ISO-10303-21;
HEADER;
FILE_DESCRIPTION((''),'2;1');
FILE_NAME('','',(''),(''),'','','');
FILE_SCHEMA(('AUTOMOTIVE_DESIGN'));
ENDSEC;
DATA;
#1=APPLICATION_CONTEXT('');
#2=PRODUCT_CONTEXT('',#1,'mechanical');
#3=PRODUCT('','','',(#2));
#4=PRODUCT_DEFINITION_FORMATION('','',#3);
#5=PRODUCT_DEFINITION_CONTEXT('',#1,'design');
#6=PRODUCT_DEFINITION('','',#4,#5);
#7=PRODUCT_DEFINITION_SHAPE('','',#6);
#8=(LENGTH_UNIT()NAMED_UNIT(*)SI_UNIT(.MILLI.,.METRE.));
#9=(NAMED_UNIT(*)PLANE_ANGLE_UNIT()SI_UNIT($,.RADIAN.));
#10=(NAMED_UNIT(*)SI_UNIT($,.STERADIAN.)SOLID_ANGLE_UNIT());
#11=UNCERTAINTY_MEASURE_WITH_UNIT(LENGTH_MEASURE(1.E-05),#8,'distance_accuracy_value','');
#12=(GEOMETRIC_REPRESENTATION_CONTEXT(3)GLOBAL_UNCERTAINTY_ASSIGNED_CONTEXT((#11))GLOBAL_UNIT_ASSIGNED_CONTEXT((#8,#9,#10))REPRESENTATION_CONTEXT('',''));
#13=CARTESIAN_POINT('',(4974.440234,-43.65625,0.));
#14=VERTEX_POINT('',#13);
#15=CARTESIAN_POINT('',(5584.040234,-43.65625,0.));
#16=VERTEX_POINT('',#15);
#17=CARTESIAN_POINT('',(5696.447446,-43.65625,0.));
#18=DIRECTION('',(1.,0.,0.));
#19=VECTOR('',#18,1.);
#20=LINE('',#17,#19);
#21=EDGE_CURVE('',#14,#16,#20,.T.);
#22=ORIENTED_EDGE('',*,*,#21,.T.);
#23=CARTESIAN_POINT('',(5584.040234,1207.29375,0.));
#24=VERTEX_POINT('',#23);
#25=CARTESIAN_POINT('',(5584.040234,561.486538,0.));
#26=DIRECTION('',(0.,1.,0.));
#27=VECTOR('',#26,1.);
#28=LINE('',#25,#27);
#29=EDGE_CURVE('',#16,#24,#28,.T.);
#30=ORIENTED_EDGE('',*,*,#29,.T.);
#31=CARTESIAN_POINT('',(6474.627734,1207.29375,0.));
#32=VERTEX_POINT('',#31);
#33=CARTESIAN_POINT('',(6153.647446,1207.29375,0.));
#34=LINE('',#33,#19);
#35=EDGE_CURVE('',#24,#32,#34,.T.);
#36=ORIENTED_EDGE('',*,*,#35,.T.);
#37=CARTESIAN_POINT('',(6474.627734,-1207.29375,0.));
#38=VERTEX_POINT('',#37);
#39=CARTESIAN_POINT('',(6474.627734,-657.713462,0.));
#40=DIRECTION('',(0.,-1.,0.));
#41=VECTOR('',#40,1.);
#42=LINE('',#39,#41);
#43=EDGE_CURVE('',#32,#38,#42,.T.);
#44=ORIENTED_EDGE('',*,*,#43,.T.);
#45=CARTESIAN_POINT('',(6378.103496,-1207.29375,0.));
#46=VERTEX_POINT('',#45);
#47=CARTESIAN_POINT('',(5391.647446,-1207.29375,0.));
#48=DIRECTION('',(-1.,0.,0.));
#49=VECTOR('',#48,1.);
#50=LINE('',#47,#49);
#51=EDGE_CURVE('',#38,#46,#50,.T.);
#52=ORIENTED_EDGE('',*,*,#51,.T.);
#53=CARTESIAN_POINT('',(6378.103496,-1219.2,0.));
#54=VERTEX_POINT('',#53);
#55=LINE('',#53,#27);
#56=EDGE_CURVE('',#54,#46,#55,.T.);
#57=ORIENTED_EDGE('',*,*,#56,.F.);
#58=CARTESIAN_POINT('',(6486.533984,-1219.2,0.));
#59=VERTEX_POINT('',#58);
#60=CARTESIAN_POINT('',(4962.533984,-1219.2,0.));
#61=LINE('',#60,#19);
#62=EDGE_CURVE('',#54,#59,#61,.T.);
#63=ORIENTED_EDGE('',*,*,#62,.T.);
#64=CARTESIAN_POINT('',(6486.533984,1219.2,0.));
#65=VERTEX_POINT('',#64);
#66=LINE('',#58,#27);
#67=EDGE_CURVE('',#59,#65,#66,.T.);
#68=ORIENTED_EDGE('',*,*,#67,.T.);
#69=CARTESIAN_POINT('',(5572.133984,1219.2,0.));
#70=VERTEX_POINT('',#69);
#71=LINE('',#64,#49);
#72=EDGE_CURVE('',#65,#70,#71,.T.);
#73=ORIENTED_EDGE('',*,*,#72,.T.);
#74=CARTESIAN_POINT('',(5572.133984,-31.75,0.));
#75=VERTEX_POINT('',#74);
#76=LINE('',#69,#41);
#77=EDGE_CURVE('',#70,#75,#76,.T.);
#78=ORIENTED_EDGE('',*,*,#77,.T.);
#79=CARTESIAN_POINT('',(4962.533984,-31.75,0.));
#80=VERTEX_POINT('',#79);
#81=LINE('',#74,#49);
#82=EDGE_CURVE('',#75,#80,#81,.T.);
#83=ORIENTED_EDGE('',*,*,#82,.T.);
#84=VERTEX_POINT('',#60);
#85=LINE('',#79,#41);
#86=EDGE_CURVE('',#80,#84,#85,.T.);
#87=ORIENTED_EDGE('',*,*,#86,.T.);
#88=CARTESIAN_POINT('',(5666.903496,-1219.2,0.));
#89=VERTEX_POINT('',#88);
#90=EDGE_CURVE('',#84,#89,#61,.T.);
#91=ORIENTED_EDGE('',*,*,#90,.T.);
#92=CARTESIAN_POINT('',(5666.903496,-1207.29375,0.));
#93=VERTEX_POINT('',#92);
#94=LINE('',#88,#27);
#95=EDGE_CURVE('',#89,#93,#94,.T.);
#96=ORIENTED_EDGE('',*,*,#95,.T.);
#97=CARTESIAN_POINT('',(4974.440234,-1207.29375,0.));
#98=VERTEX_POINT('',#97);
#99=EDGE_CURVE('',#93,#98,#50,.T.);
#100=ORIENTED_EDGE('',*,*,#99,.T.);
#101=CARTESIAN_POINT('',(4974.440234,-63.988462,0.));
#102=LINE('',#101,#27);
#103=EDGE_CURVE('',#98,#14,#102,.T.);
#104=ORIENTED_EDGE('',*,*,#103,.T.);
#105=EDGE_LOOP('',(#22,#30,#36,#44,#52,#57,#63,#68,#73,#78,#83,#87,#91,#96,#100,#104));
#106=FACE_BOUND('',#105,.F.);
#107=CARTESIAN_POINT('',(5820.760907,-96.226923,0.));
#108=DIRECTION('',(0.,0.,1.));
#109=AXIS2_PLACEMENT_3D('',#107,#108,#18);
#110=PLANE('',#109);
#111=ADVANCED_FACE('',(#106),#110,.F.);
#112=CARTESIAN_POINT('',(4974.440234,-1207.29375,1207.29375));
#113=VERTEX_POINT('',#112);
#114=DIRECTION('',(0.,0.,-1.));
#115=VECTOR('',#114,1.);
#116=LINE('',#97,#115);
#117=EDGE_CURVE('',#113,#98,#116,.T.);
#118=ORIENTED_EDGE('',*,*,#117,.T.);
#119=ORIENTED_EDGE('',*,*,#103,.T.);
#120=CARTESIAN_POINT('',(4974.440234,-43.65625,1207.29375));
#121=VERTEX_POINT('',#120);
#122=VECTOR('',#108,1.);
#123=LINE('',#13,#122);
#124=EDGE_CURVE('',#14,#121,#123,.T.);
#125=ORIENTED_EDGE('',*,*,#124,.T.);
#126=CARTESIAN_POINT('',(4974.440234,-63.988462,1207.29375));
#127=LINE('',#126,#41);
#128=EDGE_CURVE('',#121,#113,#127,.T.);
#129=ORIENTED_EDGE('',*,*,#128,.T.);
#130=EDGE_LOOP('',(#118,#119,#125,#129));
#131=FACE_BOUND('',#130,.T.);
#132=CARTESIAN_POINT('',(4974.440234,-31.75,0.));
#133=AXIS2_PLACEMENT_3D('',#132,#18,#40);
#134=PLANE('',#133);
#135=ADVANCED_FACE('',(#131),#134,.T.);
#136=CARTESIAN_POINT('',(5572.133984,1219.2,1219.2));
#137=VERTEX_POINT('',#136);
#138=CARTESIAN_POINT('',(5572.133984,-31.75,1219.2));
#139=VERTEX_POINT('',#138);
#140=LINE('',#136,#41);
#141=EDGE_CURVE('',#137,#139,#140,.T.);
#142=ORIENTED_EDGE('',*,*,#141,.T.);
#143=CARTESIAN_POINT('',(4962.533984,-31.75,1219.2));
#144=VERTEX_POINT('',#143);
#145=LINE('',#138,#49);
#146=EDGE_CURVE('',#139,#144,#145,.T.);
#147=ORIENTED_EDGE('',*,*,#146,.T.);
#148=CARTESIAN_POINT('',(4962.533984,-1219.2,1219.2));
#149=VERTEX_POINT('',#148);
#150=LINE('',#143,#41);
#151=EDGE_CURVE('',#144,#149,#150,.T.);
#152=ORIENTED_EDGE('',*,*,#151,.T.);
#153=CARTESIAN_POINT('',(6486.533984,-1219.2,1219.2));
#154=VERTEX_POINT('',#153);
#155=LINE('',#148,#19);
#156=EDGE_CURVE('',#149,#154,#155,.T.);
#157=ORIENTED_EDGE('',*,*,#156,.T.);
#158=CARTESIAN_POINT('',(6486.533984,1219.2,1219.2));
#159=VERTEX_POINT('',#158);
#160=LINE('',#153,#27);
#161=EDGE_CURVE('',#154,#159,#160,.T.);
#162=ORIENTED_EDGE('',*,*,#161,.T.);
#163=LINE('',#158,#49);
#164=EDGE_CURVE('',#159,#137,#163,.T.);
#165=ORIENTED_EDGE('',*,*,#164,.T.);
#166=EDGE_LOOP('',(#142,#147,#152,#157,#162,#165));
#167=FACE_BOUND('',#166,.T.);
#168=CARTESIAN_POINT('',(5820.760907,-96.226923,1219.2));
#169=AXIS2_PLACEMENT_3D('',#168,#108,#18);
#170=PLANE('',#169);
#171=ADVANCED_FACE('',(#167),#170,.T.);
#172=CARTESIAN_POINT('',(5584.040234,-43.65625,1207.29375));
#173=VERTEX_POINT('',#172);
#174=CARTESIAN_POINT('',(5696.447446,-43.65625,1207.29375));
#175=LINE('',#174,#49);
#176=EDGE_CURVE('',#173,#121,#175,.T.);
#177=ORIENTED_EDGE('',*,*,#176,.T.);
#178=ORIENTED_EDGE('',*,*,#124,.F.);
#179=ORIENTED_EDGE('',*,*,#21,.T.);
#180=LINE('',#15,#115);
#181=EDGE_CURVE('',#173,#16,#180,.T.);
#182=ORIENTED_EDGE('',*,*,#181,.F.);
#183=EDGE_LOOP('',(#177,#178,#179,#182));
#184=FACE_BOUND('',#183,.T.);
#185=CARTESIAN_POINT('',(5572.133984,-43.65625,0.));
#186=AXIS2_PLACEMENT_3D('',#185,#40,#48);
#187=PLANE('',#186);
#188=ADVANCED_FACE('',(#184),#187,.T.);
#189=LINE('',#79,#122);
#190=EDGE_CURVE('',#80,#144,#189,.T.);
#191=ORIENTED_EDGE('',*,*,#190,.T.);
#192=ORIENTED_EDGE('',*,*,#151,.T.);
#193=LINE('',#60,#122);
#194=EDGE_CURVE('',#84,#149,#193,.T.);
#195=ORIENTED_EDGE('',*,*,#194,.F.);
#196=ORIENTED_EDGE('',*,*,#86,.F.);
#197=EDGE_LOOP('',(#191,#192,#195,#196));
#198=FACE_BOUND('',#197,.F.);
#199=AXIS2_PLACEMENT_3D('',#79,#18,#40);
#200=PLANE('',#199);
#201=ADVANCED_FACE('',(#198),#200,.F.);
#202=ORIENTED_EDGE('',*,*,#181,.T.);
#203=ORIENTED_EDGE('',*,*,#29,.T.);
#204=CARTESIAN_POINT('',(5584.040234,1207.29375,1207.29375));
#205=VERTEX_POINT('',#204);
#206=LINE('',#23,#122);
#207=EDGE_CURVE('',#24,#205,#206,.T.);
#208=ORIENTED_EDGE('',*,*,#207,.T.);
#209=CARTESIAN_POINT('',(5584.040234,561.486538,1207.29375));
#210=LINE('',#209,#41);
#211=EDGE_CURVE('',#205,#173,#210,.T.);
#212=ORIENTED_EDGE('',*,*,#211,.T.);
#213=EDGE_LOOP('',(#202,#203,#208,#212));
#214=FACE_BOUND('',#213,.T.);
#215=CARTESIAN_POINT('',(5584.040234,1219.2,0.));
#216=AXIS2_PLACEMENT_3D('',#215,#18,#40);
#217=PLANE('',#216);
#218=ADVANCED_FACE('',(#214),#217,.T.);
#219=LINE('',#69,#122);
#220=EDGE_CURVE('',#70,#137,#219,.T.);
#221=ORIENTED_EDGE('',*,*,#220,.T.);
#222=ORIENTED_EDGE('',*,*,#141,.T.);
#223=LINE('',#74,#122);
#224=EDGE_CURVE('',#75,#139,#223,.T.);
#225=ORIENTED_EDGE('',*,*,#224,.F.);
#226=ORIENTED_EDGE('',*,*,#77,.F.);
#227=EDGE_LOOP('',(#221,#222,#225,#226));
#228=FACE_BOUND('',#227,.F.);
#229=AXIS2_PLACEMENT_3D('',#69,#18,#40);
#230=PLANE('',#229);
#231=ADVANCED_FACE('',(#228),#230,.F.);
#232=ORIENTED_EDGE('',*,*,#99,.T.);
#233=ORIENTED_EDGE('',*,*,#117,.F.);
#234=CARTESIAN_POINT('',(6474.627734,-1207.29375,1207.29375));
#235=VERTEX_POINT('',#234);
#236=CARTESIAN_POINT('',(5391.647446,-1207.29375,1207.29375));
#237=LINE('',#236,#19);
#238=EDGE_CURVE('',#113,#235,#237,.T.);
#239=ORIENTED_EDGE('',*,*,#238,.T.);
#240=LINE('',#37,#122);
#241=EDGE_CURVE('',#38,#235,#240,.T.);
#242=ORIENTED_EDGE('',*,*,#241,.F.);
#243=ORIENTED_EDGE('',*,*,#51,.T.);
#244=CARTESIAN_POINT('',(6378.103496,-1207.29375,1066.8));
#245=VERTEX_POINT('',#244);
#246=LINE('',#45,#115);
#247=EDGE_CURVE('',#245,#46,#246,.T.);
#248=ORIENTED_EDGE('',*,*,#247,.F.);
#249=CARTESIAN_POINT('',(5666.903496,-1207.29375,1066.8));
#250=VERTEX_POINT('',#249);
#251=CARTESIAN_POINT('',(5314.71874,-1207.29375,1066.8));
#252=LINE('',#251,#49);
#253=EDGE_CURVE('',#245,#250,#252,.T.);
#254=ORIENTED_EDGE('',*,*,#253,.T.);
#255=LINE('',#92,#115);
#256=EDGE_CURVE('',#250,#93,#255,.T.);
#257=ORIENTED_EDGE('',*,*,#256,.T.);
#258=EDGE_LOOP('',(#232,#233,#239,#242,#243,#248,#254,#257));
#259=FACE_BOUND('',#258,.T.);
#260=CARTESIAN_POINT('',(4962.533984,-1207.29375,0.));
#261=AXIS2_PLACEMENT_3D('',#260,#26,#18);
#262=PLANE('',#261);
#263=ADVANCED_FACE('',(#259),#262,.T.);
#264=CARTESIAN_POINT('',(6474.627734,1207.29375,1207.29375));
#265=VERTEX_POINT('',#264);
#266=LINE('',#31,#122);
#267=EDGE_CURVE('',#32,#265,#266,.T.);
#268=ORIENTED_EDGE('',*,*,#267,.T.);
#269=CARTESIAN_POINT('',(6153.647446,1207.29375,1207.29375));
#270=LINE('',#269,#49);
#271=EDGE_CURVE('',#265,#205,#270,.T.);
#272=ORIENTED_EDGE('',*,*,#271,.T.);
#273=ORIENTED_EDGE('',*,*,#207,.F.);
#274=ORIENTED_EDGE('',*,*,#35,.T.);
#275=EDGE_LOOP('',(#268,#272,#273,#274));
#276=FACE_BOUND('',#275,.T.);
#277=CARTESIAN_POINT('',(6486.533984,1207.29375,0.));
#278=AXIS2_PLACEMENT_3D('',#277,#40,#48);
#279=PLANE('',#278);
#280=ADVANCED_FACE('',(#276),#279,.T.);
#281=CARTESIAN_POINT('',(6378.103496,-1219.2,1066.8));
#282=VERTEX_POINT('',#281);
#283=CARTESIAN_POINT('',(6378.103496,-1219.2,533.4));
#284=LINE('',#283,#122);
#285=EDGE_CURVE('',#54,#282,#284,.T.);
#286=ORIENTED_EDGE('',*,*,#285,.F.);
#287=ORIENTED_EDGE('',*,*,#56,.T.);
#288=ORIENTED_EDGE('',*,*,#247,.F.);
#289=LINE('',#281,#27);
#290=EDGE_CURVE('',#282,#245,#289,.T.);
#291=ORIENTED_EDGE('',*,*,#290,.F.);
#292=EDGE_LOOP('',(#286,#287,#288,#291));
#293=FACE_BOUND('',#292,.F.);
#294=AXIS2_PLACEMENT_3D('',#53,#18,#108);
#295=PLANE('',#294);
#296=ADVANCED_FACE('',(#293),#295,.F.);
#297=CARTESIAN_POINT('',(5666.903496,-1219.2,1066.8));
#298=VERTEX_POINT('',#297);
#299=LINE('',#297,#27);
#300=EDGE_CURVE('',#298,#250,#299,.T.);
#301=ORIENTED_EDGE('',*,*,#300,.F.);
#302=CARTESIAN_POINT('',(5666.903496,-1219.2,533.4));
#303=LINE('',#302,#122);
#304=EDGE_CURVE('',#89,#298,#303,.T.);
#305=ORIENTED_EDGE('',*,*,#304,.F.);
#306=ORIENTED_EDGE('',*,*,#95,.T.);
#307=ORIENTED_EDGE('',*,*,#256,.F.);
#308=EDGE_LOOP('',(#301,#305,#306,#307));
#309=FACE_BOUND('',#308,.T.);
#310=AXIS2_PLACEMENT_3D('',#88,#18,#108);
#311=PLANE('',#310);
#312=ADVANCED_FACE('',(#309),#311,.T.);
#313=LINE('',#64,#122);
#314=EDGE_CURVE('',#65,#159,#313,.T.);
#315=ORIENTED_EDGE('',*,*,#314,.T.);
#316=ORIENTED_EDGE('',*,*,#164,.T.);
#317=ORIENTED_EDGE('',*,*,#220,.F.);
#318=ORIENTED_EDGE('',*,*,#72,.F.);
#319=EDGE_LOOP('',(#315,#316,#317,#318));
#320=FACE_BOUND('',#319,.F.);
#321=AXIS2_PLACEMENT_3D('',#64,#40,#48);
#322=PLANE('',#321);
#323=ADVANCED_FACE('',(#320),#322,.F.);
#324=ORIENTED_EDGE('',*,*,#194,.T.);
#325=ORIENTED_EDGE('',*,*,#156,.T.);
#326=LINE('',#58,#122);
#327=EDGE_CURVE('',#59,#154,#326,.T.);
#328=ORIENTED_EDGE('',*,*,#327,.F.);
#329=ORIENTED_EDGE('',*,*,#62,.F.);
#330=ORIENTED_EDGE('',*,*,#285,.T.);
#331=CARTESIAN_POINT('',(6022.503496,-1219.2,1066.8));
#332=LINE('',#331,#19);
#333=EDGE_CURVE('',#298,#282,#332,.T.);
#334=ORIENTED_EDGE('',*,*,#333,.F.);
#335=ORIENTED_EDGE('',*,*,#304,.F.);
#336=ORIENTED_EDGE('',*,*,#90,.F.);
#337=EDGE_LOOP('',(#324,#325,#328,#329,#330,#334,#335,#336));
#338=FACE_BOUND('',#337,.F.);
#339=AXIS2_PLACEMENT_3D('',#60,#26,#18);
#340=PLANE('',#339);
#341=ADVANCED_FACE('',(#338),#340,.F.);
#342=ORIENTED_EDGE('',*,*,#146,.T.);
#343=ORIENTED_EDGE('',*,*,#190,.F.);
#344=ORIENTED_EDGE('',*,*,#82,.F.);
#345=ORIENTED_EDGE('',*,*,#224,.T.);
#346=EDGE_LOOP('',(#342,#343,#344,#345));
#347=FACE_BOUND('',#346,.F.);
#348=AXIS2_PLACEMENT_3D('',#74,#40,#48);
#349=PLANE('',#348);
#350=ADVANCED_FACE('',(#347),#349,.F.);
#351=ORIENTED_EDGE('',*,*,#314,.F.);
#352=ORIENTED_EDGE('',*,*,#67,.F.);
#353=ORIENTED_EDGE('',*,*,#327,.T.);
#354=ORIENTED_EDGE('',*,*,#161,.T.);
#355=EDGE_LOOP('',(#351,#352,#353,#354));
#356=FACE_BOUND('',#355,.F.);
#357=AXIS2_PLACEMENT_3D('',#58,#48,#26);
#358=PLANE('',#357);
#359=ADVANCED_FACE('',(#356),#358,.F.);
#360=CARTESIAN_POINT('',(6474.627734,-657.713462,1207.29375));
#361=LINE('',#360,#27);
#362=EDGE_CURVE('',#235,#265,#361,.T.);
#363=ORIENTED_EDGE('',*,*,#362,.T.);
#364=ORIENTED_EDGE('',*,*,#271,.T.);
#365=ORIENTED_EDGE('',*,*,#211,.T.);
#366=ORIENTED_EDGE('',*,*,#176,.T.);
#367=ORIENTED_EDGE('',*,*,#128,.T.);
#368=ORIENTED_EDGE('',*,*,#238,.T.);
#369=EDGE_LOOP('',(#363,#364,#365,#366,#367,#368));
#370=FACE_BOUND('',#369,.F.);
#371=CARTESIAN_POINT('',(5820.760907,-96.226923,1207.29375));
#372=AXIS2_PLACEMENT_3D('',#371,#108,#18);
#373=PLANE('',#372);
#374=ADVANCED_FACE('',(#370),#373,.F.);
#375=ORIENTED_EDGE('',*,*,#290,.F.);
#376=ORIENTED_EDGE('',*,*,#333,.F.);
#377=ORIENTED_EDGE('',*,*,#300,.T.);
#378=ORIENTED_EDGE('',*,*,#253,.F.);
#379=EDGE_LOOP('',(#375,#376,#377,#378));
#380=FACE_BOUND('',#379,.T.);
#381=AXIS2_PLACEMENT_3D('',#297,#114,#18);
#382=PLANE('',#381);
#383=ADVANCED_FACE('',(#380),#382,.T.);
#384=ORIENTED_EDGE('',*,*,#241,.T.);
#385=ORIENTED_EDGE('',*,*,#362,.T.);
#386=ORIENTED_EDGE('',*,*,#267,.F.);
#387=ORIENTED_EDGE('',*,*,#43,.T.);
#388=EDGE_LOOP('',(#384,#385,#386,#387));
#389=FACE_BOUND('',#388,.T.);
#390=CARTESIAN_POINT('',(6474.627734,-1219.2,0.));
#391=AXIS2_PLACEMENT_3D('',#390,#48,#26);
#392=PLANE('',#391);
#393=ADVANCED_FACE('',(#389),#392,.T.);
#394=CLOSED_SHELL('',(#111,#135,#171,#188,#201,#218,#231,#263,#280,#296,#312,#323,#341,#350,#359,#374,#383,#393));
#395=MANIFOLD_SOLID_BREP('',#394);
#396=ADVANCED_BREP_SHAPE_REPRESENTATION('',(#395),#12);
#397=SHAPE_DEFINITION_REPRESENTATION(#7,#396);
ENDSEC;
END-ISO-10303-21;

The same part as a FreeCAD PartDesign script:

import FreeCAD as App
import Part
import Sketcher
Q = App.Units.Quantity


def faces_at(feature, points):
    """Names of the faces that lie closest to the given points."""
    faces = feature.Shape.Faces
    near = lambda p: min(range(len(faces)), key=lambda i: faces[i].distToShape(Part.Vertex(*p))[0])
    return sorted({f"Face{near(p) + 1}" for p in points})


def add_polygon(sketch, points):
    """Adds a closed chain of lines whose ends are joined by coincident constraints."""
    first, n = sketch.GeometryCount, len(points)
    for a, b in zip(points, points[1:] + points[:1]):
        sketch.addGeometry(Part.LineSegment(App.Vector(*a, 0), App.Vector(*b, 0)), False)
    for i in range(n):
        sketch.addConstraint(Sketcher.Constraint("Coincident", first + i, 2, first + (i + 1) % n, 1))

doc = App.newDocument("Part")
body = doc.addObject("PartDesign::Body", "Body")

sketch1 = doc.addObject("Sketcher::SketchObject", "Sketch")
body.addObject(sketch1)
sketch1.AttachmentSupport = (doc.XY_Plane, [""])
sketch1.MapMode = "FlatFace"
add_polygon(sketch1, [(4963, -1219), (6487, -1219), (6487, 1219), (5572, 1219), (5572, -32), (4963, -32)])
sketch1.addConstraint(Sketcher.Constraint("Horizontal", 0))
sketch1.addConstraint(Sketcher.Constraint("Vertical", 1))
sketch1.addConstraint(Sketcher.Constraint("Horizontal", 2))
sketch1.addConstraint(Sketcher.Constraint("Vertical", 3))
sketch1.addConstraint(Sketcher.Constraint("Horizontal", 4))
sketch1.addConstraint(Sketcher.Constraint("Vertical", 5))
sketch1.addConstraint(Sketcher.Constraint("DistanceX", 0, 1, 0, 2, Q("60 in")))
sketch1.addConstraint(Sketcher.Constraint("DistanceX", 2, 2, 2, 1, Q("36 in")))
sketch1.addConstraint(Sketcher.Constraint("DistanceY", 1, 1, 1, 2, Q("96 in")))
sketch1.addConstraint(Sketcher.Constraint("DistanceY", 0, 2, -1, 1, Q("48 in")))
sketch1.addConstraint(Sketcher.Constraint("DistanceY", 3, 2, 3, 1, Q("49.25 in")))
sketch1.addConstraint(Sketcher.Constraint("DistanceX", -1, 1, 0, 2, Q("6486.533984 mm")))
pad1 = doc.addObject("PartDesign::Pad", "Pad")
body.addObject(pad1)
pad1.Profile = sketch1
pad1.Length = Q("48 in")
doc.recompute()

thickness = doc.addObject("PartDesign::Thickness", "Thickness")
body.addObject(thickness)
thickness.Base = (pad1, faces_at(pad1, [(5724.534, 0, 0)]))
thickness.Value = Q("0.46875 in")
thickness.Reversed = True
thickness.Join = "Intersection"

sketch2 = doc.addObject("Sketcher::SketchObject", "Sketch001")
body.addObject(sketch2)
sketch2.AttachmentSupport = (doc.XZ_Plane, [""])
sketch2.MapMode = "FlatFace"
sketch2.AttachmentOffset = App.Placement(App.Vector(0, 0, 48 * 25.4), App.Rotation())
add_polygon(sketch2, [(5667, 1067), (5667, 0), (6378, 0), (6378, 1067)])
sketch2.addConstraint(Sketcher.Constraint("Vertical", 0))
sketch2.addConstraint(Sketcher.Constraint("Horizontal", 1))
sketch2.addConstraint(Sketcher.Constraint("Vertical", 2))
sketch2.addConstraint(Sketcher.Constraint("Horizontal", 3))
sketch2.addConstraint(Sketcher.Constraint("PointOnObject", 0, 2, -1))
sketch2.addConstraint(Sketcher.Constraint("DistanceX", 1, 1, 1, 2, Q("28 in")))
sketch2.addConstraint(Sketcher.Constraint("DistanceY", 0, 2, 0, 1, Q("42 in")))
sketch2.addConstraint(Sketcher.Constraint("DistanceX", -1, 1, 0, 2, Q("5666.903496 mm")))
pocket1 = doc.addObject("PartDesign::Pocket", "Pocket")
body.addObject(pocket1)
pocket1.Profile = sketch2
pocket1.Length = Q("1 in")

doc.recompute()
